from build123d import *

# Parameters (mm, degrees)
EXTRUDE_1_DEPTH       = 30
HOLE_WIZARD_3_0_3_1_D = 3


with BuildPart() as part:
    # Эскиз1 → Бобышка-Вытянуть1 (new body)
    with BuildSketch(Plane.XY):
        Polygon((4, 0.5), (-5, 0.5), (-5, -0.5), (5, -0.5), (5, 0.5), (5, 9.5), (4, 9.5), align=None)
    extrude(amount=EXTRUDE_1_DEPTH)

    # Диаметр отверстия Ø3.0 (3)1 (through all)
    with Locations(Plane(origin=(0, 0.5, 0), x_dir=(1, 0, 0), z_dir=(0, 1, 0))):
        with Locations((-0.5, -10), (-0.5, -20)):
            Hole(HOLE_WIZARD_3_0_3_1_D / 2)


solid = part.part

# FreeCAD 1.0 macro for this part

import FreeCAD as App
import Part
import Sketcher
from FreeCAD import Vector

doc = App.newDocument("Part")
body = doc.addObject("PartDesign::Body", "Body")

sketch1 = body.newObject("Sketcher::SketchObject", "Sketch")
sketch1.AttachmentSupport = (doc.getObject("XY_Plane"), [""])
sketch1.MapMode = "FlatFace"
sketch1.addGeometry(Part.LineSegment(Vector(4, 0.5, 0), Vector(-5, 0.5, 0)), False)
sketch1.addGeometry(Part.LineSegment(Vector(-5, 0.5, 0), Vector(-5, -0.5, 0)), False)
sketch1.addGeometry(Part.LineSegment(Vector(-5, -0.5, 0), Vector(5, -0.5, 0)), False)
sketch1.addGeometry(Part.LineSegment(Vector(5, -0.5, 0), Vector(5, 9.5, 0)), False)
sketch1.addGeometry(Part.LineSegment(Vector(5, 9.5, 0), Vector(4, 9.5, 0)), False)
sketch1.addGeometry(Part.LineSegment(Vector(4, 9.5, 0), Vector(4, 0.5, 0)), False)
sketch1.addConstraint(Sketcher.Constraint("Coincident", 0, 2, 1, 1))
sketch1.addConstraint(Sketcher.Constraint("Coincident", 1, 2, 2, 1))
sketch1.addConstraint(Sketcher.Constraint("Coincident", 2, 2, 3, 1))
sketch1.addConstraint(Sketcher.Constraint("Coincident", 3, 2, 4, 1))
sketch1.addConstraint(Sketcher.Constraint("Coincident", 4, 2, 5, 1))
sketch1.addConstraint(Sketcher.Constraint("Coincident", 5, 2, 0, 1))
sketch1.addConstraint(Sketcher.Constraint("Horizontal", 0))
sketch1.addConstraint(Sketcher.Constraint("Vertical", 1))
sketch1.addConstraint(Sketcher.Constraint("Horizontal", 2))
sketch1.addConstraint(Sketcher.Constraint("Vertical", 3))
sketch1.addConstraint(Sketcher.Constraint("Horizontal", 4))
sketch1.addConstraint(Sketcher.Constraint("Vertical", 5))
sketch1.addConstraint(Sketcher.Constraint("Symmetric", 0, 2, 2, 2, -1, 1))
sketch1.addConstraint(Sketcher.Constraint("Equal", 4, 1))
sketch1.addConstraint(Sketcher.Constraint("Equal", 2, 3))
sketch1.addConstraint(Sketcher.Constraint("DistanceX", 0, 2, 0, 1, 9.0))
sketch1.addConstraint(Sketcher.Constraint("DistanceX", 2, 1, 2, 2, 10.0))
pad1 = body.newObject("PartDesign::Pad", "Pad")
pad1.Profile = sketch1
pad1.Length = 30

sketch2 = body.newObject("Sketcher::SketchObject", "Sketch001")
sketch2.AttachmentSupport = (doc.getObject("XZ_Plane"), [""])
sketch2.MapMode = "FlatFace"
sketch2.AttachmentOffset = App.Placement(Vector(0, 0, -0.5), App.Rotation())
sketch2.addGeometry(Part.Circle(Vector(-0.5, 10, 0), Vector(0, 0, 1), 1.5), False)
sketch2.addGeometry(Part.Circle(Vector(-0.5, 20, 0), Vector(0, 0, 1), 1.5), False)
sketch2.addConstraint(Sketcher.Constraint("Equal", 0, 1))
sketch2.addConstraint(Sketcher.Constraint("Vertical", 0, 3, 1, 3))
sketch2.addConstraint(Sketcher.Constraint("Diameter", 0, 3.0))
sketch2.addConstraint(Sketcher.Constraint("DistanceY", -1, 1, 0, 3, 10.0))
sketch2.addConstraint(Sketcher.Constraint("DistanceY", -1, 1, 1, 3, 20.0))
sketch2.addConstraint(Sketcher.Constraint("DistanceX", 0, 3, -1, 1, 0.5))
doc.recompute()
hole = body.newObject("PartDesign::Hole", "Hole")
hole.Profile = sketch2
hole.ThreadType = "None"
hole.Diameter = 3
hole.DepthType = "ThroughAll"
hole.Reversed = True

doc.recompute()
